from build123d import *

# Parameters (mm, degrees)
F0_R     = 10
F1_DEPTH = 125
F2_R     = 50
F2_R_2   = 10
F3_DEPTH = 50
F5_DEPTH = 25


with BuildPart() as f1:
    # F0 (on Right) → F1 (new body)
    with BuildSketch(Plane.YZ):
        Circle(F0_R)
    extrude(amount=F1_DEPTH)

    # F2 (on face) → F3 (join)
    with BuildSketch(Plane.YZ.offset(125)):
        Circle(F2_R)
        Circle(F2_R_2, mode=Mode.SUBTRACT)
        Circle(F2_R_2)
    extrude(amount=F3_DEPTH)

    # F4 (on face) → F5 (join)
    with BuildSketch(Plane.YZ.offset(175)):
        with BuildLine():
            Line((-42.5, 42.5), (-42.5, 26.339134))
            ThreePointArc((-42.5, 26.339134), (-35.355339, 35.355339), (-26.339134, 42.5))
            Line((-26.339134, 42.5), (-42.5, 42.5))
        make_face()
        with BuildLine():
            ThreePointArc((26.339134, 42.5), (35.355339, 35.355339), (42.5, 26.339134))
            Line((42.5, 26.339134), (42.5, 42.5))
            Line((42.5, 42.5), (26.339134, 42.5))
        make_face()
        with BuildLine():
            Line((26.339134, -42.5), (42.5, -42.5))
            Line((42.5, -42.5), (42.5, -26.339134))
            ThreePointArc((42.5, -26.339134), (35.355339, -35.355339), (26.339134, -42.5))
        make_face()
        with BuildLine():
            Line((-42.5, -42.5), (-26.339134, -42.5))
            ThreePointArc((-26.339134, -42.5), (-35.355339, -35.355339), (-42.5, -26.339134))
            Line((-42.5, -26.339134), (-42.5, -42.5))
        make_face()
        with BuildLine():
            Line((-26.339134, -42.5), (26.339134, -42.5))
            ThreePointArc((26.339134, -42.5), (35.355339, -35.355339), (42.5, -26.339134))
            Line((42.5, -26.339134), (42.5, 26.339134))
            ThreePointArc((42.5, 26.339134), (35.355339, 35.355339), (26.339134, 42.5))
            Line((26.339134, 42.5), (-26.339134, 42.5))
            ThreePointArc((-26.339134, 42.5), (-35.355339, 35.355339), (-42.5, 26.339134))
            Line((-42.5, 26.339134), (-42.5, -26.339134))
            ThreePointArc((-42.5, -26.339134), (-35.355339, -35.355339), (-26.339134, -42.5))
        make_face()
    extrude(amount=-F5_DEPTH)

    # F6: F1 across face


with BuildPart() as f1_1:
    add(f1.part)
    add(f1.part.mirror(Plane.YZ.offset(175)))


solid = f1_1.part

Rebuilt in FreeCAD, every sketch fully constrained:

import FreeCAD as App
import Part
import Sketcher

doc = App.newDocument("Part")
body = doc.addObject("PartDesign::Body", "Body")

# Sketch on YZ plane
sketch1 = body.newObject("Sketcher::SketchObject", "Sketch")
sketch1.AttachmentSupport = (doc.getObject("YZ_Plane"), [""])
sketch1.MapMode = "FlatFace"
sketch1.addGeometry(Part.Circle(App.Vector(0, 0, 0), App.Vector(0, 0, 1), 10), False)
sketch1.addConstraint(Sketcher.Constraint("Coincident", 0, 3, -1, 1))
sketch1.addConstraint(Sketcher.Constraint("Diameter", 0, 20.0))
pad1 = body.newObject("PartDesign::Pad", "Pad")
pad1.Profile = sketch1
pad1.Length = 125

# Sketch on YZ plane
sketch2 = body.newObject("Sketcher::SketchObject", "Sketch001")
sketch2.AttachmentSupport = (doc.getObject("YZ_Plane"), [""])
sketch2.MapMode = "FlatFace"
sketch2.AttachmentOffset = App.Placement(App.Vector(0, 0, 125), App.Rotation())
sketch2.addGeometry(Part.Circle(App.Vector(0, 0, 0), App.Vector(0, 0, 1), 50), False)
sketch2.addConstraint(Sketcher.Constraint("Coincident", 0, 3, -1, 1))
sketch2.addConstraint(Sketcher.Constraint("Diameter", 0, 100.0))
pad2 = body.newObject("PartDesign::Pad", "Pad001")
pad2.Profile = sketch2
pad2.Length = 50

# Sketch on YZ plane
sketch3 = body.newObject("Sketcher::SketchObject", "Sketch002")
sketch3.AttachmentSupport = (doc.getObject("YZ_Plane"), [""])
sketch3.MapMode = "FlatFace"
sketch3.AttachmentOffset = App.Placement(App.Vector(0, 0, 175), App.Rotation())
sketch3.addGeometry(Part.LineSegment(App.Vector(-42, 42, 0), App.Vector(-42, -42, 0)), False)
sketch3.addGeometry(Part.LineSegment(App.Vector(-42, -42, 0), App.Vector(42, -42, 0)), False)
sketch3.addGeometry(Part.LineSegment(App.Vector(42, -42, 0), App.Vector(42, 42, 0)), False)
sketch3.addGeometry(Part.LineSegment(App.Vector(42, 42, 0), App.Vector(-42, 42, 0)), False)
sketch3.addConstraint(Sketcher.Constraint("Coincident", 0, 2, 1, 1))
sketch3.addConstraint(Sketcher.Constraint("Coincident", 1, 2, 2, 1))
sketch3.addConstraint(Sketcher.Constraint("Coincident", 2, 2, 3, 1))
sketch3.addConstraint(Sketcher.Constraint("Coincident", 3, 2, 0, 1))
sketch3.addConstraint(Sketcher.Constraint("Vertical", 0))
sketch3.addConstraint(Sketcher.Constraint("Horizontal", 1))
sketch3.addConstraint(Sketcher.Constraint("Vertical", 2))
sketch3.addConstraint(Sketcher.Constraint("Horizontal", 3))
sketch3.addConstraint(Sketcher.Constraint("Symmetric", 0, 2, 2, 2, -1, 1))
sketch3.addConstraint(Sketcher.Constraint("Equal", 3, 0))
sketch3.addConstraint(Sketcher.Constraint("DistanceX", 1, 1, 1, 2, 85.0))
pad3 = body.newObject("PartDesign::Pad", "Pad002")
pad3.Profile = sketch3
pad3.Length = 25
pad3.Reversed = True
body2 = doc.addObject("PartDesign::Body", "Body001")
doc.recompute()

body2.BaseFeature = body
doc.recompute()

mirroring = doc.addObject("Part::Mirroring", "Mirroring")
mirroring.Source = body
mirroring.Base = App.Vector(175, 0, 0)
mirroring.Normal = App.Vector(1, 0, 0)
body3 = doc.addObject("PartDesign::Body", "Body002")
body3.BaseFeature = mirroring
boolean = body2.newObject("PartDesign::Boolean", "Boolean")
boolean.Type = "Fuse"
boolean.addObjects([body3])
doc.recompute()
mirroring.Visibility = False

doc.recompute()
